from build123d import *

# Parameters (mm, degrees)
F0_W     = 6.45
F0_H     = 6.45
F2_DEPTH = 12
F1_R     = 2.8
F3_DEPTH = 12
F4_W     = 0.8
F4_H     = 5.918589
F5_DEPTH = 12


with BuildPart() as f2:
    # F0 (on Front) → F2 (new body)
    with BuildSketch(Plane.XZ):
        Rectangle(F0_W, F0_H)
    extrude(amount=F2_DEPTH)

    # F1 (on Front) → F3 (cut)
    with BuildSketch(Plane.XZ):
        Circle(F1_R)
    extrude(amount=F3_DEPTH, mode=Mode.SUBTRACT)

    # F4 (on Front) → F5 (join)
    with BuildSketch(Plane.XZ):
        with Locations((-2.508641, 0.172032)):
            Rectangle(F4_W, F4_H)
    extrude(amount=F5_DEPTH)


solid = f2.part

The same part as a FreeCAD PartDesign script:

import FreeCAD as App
import Part
import Sketcher

doc = App.newDocument("Part")
body = doc.addObject("PartDesign::Body", "Body")

sketch1 = body.newObject("Sketcher::SketchObject", "Sketch")
sketch1.AttachmentSupport = (doc.getObject("XZ_Plane"), [""])
sketch1.MapMode = "FlatFace"
sketch1.addGeometry([
    Part.LineSegment(App.Vector(-3, 3, 0), App.Vector(-3, -3, 0)),
    Part.LineSegment(App.Vector(-3, -3, 0), App.Vector(3, -3, 0)),
    Part.LineSegment(App.Vector(3, -3, 0), App.Vector(3, 3, 0)),
    Part.LineSegment(App.Vector(3, 3, 0), App.Vector(-3, 3, 0)),
], False)
sketch1.addConstraint([
    Sketcher.Constraint("Coincident", 0, 2, 1, 1),
    Sketcher.Constraint("Coincident", 1, 2, 2, 1),
    Sketcher.Constraint("Coincident", 2, 2, 3, 1),
    Sketcher.Constraint("Coincident", 3, 2, 0, 1),
    Sketcher.Constraint("Vertical", 0),
    Sketcher.Constraint("Horizontal", 1),
    Sketcher.Constraint("Vertical", 2),
    Sketcher.Constraint("Horizontal", 3),
    Sketcher.Constraint("Symmetric", 0, 2, 2, 2, -1, 1),
    Sketcher.Constraint("Equal", 3, 0),
    Sketcher.Constraint("DistanceX", 1, 1, 1, 2, 6.45),
])
pad1 = body.newObject("PartDesign::Pad", "Pad")
pad1.Profile = sketch1
pad1.Length = 12

sketch2 = body.newObject("Sketcher::SketchObject", "Sketch001")
sketch2.AttachmentSupport = (doc.getObject("XZ_Plane"), [""])
sketch2.MapMode = "FlatFace"
sketch2.addGeometry(Part.Circle(App.Vector(0, 0, 0), App.Vector(0, 0, 1), 2.8), False)
sketch2.addConstraint([
    Sketcher.Constraint("Coincident", 0, 3, -1, 1),
    Sketcher.Constraint("Diameter", 0, 5.6),
])
pocket1 = body.newObject("PartDesign::Pocket", "Pocket")
pocket1.Profile = sketch2
pocket1.Length = 12
pocket1.Reversed = True

sketch3 = body.newObject("Sketcher::SketchObject", "Sketch002")
sketch3.AttachmentSupport = (doc.getObject("XZ_Plane"), [""])
sketch3.MapMode = "FlatFace"
sketch3.addGeometry([
    Part.LineSegment(App.Vector(-2.9, 3.1, 0), App.Vector(-2.9, -2.8, 0)),
    Part.LineSegment(App.Vector(-2.9, -2.8, 0), App.Vector(-2.1, -2.8, 0)),
    Part.LineSegment(App.Vector(-2.1, -2.8, 0), App.Vector(-2.1, 3.1, 0)),
    Part.LineSegment(App.Vector(-2.1, 3.1, 0), App.Vector(-2.9, 3.1, 0)),
], False)
sketch3.addConstraint([
    Sketcher.Constraint("Coincident", 0, 2, 1, 1),
    Sketcher.Constraint("Coincident", 1, 2, 2, 1),
    Sketcher.Constraint("Coincident", 2, 2, 3, 1),
    Sketcher.Constraint("Coincident", 3, 2, 0, 1),
    Sketcher.Constraint("Vertical", 0),
    Sketcher.Constraint("Horizontal", 1),
    Sketcher.Constraint("Vertical", 2),
    Sketcher.Constraint("Horizontal", 3),
    Sketcher.Constraint("DistanceX", 1, 1, 1, 2, 0.8),
    Sketcher.Constraint("DistanceY", 0, 2, 0, 1, 5.918589),
    Sketcher.Constraint("DistanceX", 0, 2, -1, 1, 2.908641),
    Sketcher.Constraint("DistanceY", 0, 2, -1, 1, 2.787263),
])
pad2 = body.newObject("PartDesign::Pad", "Pad001")
pad2.Profile = sketch3
pad2.Length = 12

doc.recompute()
